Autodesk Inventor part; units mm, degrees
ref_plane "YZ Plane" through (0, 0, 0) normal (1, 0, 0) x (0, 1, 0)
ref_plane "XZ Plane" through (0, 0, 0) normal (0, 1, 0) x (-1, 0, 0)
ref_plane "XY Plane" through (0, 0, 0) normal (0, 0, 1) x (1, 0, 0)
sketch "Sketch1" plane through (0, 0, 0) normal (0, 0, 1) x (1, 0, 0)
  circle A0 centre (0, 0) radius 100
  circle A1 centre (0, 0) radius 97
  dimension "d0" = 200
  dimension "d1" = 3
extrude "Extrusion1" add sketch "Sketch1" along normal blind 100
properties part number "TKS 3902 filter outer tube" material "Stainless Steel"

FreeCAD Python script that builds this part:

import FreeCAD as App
import Part
import Sketcher

doc = App.newDocument("Part")
params = doc.addObject("Spreadsheet::Sheet", "Params")
for row, (alias, value) in enumerate([
    ("sketch1_diameter", "200 mm"),
    ("sketch1_diameter2", "194 mm"),
    ("pad1_length", "100 mm"),
], start=1):
    params.set(f"A{row}", alias)
    params.set(f"B{row}", "=" + value)
    params.setAlias(f"B{row}", alias)

body = doc.addObject("PartDesign::Body", "Body")

sketch1 = body.newObject("Sketcher::SketchObject", "Sketch")
sketch1.AttachmentSupport = (doc.getObject("XY_Plane"), [""])
sketch1.MapMode = "FlatFace"
sketch1.addGeometry([
    Part.Circle(App.Vector(0, 0, 0), App.Vector(0, 0, 1), 100),
    Part.Circle(App.Vector(0, 0, 0), App.Vector(0, 0, 1), 97),
], False)
sketch1.addConstraint([
    Sketcher.Constraint("Coincident", 0, 3, -1, 1),
    Sketcher.Constraint("Coincident", 1, 3, -1, 1),
    Sketcher.Constraint("Diameter", 0, 200.0),
    Sketcher.Constraint("Diameter", 1, 194.0),
])
sketch1.setExpression("Constraints[2]", "Params.sketch1_diameter")
sketch1.setExpression("Constraints[3]", "Params.sketch1_diameter2")
pad1 = body.newObject("PartDesign::Pad", "Pad")
pad1.Profile = sketch1
pad1.setExpression("Length", "Params.pad1_length")

doc.recompute()
